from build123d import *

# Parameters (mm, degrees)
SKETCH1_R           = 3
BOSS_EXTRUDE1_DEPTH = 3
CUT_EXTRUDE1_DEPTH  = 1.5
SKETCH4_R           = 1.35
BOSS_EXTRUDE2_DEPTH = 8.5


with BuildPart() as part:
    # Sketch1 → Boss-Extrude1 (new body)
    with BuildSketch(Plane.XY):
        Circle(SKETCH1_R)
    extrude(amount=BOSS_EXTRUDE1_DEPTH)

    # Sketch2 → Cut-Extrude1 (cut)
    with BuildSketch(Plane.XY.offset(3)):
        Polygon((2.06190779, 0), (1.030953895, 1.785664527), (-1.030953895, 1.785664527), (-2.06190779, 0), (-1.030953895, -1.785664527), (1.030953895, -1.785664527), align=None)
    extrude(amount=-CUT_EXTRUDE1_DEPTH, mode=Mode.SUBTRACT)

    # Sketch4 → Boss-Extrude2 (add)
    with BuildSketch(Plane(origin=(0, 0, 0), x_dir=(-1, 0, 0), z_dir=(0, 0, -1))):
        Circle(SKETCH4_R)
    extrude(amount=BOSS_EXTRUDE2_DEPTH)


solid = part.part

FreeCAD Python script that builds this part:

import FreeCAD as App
import Part
import Sketcher
Q = App.Units.Quantity

doc = App.newDocument("Part")
body = doc.addObject("PartDesign::Body", "Body")

# Sketch on XY plane
sketch1 = doc.addObject("Sketcher::SketchObject", "Sketch")
body.addObject(sketch1)
sketch1.AttachmentSupport = (doc.XY_Plane, [""])
sketch1.MapMode = "FlatFace"
sketch1.addGeometry(Part.Circle(App.Vector(0, 0, 0), App.Vector(0, 0, 1), 3), False)
sketch1.addConstraint([
    Sketcher.Constraint("Coincident", 0, 3, -1, 1),
    Sketcher.Constraint("Diameter", 0, Q("6 mm")),
])
pad1 = doc.addObject("PartDesign::Pad", "Pad")
body.addObject(pad1)
pad1.Profile = sketch1
pad1.Length = 3

# Sketch on XY plane
sketch2 = doc.addObject("Sketcher::SketchObject", "Sketch001")
body.addObject(sketch2)
sketch2.AttachmentSupport = (doc.XY_Plane, [""])
sketch2.MapMode = "FlatFace"
sketch2.AttachmentOffset = App.Placement(App.Vector(0, 0, 3), App.Rotation())
sketch2.addGeometry([
    Part.LineSegment(App.Vector(2.061908, 0, 0), App.Vector(1.030954, 1.785665, 0)),  # 0
    Part.LineSegment(App.Vector(1.030954, 1.785665, 0), App.Vector(-1.030954, 1.785665, 0)),  # 1
    Part.LineSegment(App.Vector(-1.030954, 1.785665, 0), App.Vector(-2.061908, 0, 0)),  # 2
    Part.LineSegment(App.Vector(-2.061908, 0, 0), App.Vector(-1.030954, -1.785665, 0)),  # 3
    Part.LineSegment(App.Vector(-1.030954, -1.785665, 0), App.Vector(1.030954, -1.785665, 0)),  # 4
    Part.LineSegment(App.Vector(1.030954, -1.785665, 0), App.Vector(2.061908, 0, 0)),  # 5
], False)
sketch2.addConstraint([
    Sketcher.Constraint("Coincident", 0, 2, 1, 1),
    Sketcher.Constraint("Coincident", 1, 2, 2, 1),
    Sketcher.Constraint("Coincident", 2, 2, 3, 1),
    Sketcher.Constraint("Coincident", 3, 2, 4, 1),
    Sketcher.Constraint("Coincident", 4, 2, 5, 1),
    Sketcher.Constraint("Coincident", 5, 2, 0, 1),
    Sketcher.Constraint("Horizontal", 1),
    Sketcher.Constraint("Horizontal", 4),
    Sketcher.Constraint("Symmetric", 0, 2, 3, 2, -1, 1),
    Sketcher.Constraint("Symmetric", 2, 2, 5, 2, -1, 1),
    Sketcher.Constraint("PointOnObject", 2, 2, -1),
    Sketcher.Constraint("Parallel", 2, 5),
    Sketcher.Constraint("Vertical", 1, 2, 3, 2),
    Sketcher.Constraint("Angle", 0, Q("120 deg")),
    Sketcher.Constraint("DistanceX", 1, 2, 1, 1, Q("2.061908 mm")),
    Sketcher.Constraint("DistanceX", 2, 2, 0, 2, Q("3.092862 mm")),
])
pocket1 = doc.addObject("PartDesign::Pocket", "Pocket")
body.addObject(pocket1)
pocket1.Profile = sketch2
pocket1.Length = 1.5

# Sketch on XY plane
sketch3 = doc.addObject("Sketcher::SketchObject", "Sketch002")
body.addObject(sketch3)
sketch3.AttachmentSupport = (doc.XY_Plane, [""])
sketch3.MapMode = "FlatFace"
sketch3.addGeometry(Part.Circle(App.Vector(0, 0, 0), App.Vector(0, 0, 1), 1.35), False)
sketch3.addConstraint([
    Sketcher.Constraint("Coincident", 0, 3, -1, 1),
    Sketcher.Constraint("Diameter", 0, Q("2.7 mm")),
])
pad2 = doc.addObject("PartDesign::Pad", "Pad001")
body.addObject(pad2)
pad2.Profile = sketch3
pad2.Length = 8.5
pad2.Reversed = True

doc.recompute()
